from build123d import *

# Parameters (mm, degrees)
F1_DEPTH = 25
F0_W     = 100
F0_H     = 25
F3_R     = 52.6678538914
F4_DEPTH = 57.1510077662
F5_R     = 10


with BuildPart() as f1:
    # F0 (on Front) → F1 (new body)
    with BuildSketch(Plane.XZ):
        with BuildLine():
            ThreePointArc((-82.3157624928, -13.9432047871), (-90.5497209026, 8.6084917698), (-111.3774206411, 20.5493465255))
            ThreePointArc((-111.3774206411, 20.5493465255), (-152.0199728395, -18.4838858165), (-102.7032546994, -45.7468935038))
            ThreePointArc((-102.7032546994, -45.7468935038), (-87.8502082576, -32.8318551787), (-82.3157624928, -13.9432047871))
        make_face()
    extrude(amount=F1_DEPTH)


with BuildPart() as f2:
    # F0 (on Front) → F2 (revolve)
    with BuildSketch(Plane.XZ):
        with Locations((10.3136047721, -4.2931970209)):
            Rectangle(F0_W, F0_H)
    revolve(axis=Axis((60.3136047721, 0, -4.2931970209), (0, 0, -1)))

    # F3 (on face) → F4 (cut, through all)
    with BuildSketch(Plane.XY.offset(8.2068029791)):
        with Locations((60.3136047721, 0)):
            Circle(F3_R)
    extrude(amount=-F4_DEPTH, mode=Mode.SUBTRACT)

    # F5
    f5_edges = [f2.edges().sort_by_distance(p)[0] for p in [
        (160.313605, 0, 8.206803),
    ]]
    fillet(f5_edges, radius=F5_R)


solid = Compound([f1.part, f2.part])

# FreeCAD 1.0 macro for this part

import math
import FreeCAD as App
import Part
import Sketcher

V = App.Vector


def edges_at(feature, points):
    """Names of the edges that pass closest to the given points."""
    edges = feature.Shape.Edges
    near = lambda p: min(range(len(edges)), key=lambda i: edges[i].distToShape(Part.Vertex(*p))[0])
    return sorted({f"Edge{near(p) + 1}" for p in points})

doc = App.newDocument("Part")
body = doc.addObject("PartDesign::Body", "Body")

sketch1 = doc.addObject("Sketcher::SketchObject", "Sketch")
body.addObject(sketch1)
sketch1.AttachmentSupport = (doc.XZ_Plane, [""])
sketch1.MapMode = "FlatFace"
sketch1.addGeometry([
    Part.ArcOfCircle(Part.Circle(V(-117, -14, 0), V(0, 0, 1), 35), math.radians(0), math.radians(80)),
    Part.ArcOfCircle(Part.Circle(V(-117, -14, 0), V(0, 0, 1), 35), math.radians(80), math.radians(295)),
    Part.ArcOfCircle(Part.Circle(V(-117, -14, 0), V(0, 0, 1), 35), math.radians(-65), math.radians(0)),
], False)
sketch1.addConstraint([
    Sketcher.Constraint("Tangent", 0, 2, 1, 1),
    Sketcher.Constraint("Tangent", 1, 2, 2, 1),
    Sketcher.Constraint("Tangent", 2, 2, 0, 1),
    Sketcher.Constraint("Horizontal", 1, 3, 2, 2),
    Sketcher.Constraint("Radius", 0, 35.0),
    Sketcher.Constraint("DistanceX", 0, 2, -1, 1, 111.377421),
    Sketcher.Constraint("DistanceX", 0, 3, 0, 2, 5.938342),
    Sketcher.Constraint("DistanceY", 1, 2, 0, 3, 31.803689),
    Sketcher.Constraint("DistanceY", 0, 3, -1, 1, 13.943205),
])
pad1 = doc.addObject("PartDesign::Pad", "Pad")
body.addObject(pad1)
pad1.Profile = sketch1
pad1.Length = 25
body2 = doc.addObject("PartDesign::Body", "Body001")

sketch2 = doc.addObject("Sketcher::SketchObject", "Sketch001")
body2.addObject(sketch2)
sketch2.AttachmentSupport = (doc.getObject("XZ_Plane001"), [""])
sketch2.MapMode = "FlatFace"
sketch2.addGeometry([
    Part.LineSegment(V(-40, 8, 0), V(-40, -17, 0)),
    Part.LineSegment(V(-40, -17, 0), V(60, -17, 0)),
    Part.LineSegment(V(60, -17, 0), V(60, 8, 0)),
    Part.LineSegment(V(60, 8, 0), V(-40, 8, 0)),
], False)
sketch2.addGeometry(Part.LineSegment(V(60, 8, 0), V(60, -17, 0)), True)
sketch2.addConstraint([
    Sketcher.Constraint("Coincident", 0, 2, 1, 1),
    Sketcher.Constraint("Coincident", 1, 2, 2, 1),
    Sketcher.Constraint("Coincident", 2, 2, 3, 1),
    Sketcher.Constraint("Coincident", 3, 2, 0, 1),
    Sketcher.Constraint("Vertical", 0),
    Sketcher.Constraint("Horizontal", 1),
    Sketcher.Constraint("Vertical", 2),
    Sketcher.Constraint("Horizontal", 3),
    Sketcher.Constraint("Vertical", 4),
    Sketcher.Constraint("Coincident", 4, 1, 2, 2),
    Sketcher.Constraint("Horizontal", 0, 2, 4, 2),
    Sketcher.Constraint("DistanceX", 1, 1, 1, 2, 100.0),
    Sketcher.Constraint("DistanceY", 0, 2, 0, 1, 25.0),
    Sketcher.Constraint("DistanceX", 0, 2, -1, 1, 39.686395),
    Sketcher.Constraint("DistanceY", 0, 2, -1, 1, 16.793197),
])
revolution = doc.addObject("PartDesign::Revolution", "Revolution")
body2.addObject(revolution)
revolution.Profile = sketch2
revolution.ReferenceAxis = (sketch2, ["Axis0"])
revolution.Angle = 360

sketch3 = doc.addObject("Sketcher::SketchObject", "Sketch002")
body2.addObject(sketch3)
sketch3.AttachmentSupport = (doc.getObject("XY_Plane001"), [""])
sketch3.MapMode = "FlatFace"
sketch3.AttachmentOffset = App.Placement(V(0, 0, 8.206803), App.Rotation())
sketch3.addGeometry(Part.Circle(V(60, 0, 0), V(0, 0, 1), 53), False)
sketch3.addConstraint([
    Sketcher.Constraint("PointOnObject", 0, 3, -1),
    Sketcher.Constraint("Diameter", 0, 105.335708),
    Sketcher.Constraint("DistanceX", -1, 1, 0, 3, 60.313605),
])
pocket1 = doc.addObject("PartDesign::Pocket", "Pocket")
body2.addObject(pocket1)
pocket1.Profile = sketch3
pocket1.Type = "ThroughAll"
doc.recompute()

fillet = doc.addObject("PartDesign::Fillet", "Fillet")
body2.addObject(fillet)
fillet.Base = (pocket1, edges_at(pocket1, [(160.314, 0, 8.207)]))
fillet.Radius = 10

doc.recompute()
